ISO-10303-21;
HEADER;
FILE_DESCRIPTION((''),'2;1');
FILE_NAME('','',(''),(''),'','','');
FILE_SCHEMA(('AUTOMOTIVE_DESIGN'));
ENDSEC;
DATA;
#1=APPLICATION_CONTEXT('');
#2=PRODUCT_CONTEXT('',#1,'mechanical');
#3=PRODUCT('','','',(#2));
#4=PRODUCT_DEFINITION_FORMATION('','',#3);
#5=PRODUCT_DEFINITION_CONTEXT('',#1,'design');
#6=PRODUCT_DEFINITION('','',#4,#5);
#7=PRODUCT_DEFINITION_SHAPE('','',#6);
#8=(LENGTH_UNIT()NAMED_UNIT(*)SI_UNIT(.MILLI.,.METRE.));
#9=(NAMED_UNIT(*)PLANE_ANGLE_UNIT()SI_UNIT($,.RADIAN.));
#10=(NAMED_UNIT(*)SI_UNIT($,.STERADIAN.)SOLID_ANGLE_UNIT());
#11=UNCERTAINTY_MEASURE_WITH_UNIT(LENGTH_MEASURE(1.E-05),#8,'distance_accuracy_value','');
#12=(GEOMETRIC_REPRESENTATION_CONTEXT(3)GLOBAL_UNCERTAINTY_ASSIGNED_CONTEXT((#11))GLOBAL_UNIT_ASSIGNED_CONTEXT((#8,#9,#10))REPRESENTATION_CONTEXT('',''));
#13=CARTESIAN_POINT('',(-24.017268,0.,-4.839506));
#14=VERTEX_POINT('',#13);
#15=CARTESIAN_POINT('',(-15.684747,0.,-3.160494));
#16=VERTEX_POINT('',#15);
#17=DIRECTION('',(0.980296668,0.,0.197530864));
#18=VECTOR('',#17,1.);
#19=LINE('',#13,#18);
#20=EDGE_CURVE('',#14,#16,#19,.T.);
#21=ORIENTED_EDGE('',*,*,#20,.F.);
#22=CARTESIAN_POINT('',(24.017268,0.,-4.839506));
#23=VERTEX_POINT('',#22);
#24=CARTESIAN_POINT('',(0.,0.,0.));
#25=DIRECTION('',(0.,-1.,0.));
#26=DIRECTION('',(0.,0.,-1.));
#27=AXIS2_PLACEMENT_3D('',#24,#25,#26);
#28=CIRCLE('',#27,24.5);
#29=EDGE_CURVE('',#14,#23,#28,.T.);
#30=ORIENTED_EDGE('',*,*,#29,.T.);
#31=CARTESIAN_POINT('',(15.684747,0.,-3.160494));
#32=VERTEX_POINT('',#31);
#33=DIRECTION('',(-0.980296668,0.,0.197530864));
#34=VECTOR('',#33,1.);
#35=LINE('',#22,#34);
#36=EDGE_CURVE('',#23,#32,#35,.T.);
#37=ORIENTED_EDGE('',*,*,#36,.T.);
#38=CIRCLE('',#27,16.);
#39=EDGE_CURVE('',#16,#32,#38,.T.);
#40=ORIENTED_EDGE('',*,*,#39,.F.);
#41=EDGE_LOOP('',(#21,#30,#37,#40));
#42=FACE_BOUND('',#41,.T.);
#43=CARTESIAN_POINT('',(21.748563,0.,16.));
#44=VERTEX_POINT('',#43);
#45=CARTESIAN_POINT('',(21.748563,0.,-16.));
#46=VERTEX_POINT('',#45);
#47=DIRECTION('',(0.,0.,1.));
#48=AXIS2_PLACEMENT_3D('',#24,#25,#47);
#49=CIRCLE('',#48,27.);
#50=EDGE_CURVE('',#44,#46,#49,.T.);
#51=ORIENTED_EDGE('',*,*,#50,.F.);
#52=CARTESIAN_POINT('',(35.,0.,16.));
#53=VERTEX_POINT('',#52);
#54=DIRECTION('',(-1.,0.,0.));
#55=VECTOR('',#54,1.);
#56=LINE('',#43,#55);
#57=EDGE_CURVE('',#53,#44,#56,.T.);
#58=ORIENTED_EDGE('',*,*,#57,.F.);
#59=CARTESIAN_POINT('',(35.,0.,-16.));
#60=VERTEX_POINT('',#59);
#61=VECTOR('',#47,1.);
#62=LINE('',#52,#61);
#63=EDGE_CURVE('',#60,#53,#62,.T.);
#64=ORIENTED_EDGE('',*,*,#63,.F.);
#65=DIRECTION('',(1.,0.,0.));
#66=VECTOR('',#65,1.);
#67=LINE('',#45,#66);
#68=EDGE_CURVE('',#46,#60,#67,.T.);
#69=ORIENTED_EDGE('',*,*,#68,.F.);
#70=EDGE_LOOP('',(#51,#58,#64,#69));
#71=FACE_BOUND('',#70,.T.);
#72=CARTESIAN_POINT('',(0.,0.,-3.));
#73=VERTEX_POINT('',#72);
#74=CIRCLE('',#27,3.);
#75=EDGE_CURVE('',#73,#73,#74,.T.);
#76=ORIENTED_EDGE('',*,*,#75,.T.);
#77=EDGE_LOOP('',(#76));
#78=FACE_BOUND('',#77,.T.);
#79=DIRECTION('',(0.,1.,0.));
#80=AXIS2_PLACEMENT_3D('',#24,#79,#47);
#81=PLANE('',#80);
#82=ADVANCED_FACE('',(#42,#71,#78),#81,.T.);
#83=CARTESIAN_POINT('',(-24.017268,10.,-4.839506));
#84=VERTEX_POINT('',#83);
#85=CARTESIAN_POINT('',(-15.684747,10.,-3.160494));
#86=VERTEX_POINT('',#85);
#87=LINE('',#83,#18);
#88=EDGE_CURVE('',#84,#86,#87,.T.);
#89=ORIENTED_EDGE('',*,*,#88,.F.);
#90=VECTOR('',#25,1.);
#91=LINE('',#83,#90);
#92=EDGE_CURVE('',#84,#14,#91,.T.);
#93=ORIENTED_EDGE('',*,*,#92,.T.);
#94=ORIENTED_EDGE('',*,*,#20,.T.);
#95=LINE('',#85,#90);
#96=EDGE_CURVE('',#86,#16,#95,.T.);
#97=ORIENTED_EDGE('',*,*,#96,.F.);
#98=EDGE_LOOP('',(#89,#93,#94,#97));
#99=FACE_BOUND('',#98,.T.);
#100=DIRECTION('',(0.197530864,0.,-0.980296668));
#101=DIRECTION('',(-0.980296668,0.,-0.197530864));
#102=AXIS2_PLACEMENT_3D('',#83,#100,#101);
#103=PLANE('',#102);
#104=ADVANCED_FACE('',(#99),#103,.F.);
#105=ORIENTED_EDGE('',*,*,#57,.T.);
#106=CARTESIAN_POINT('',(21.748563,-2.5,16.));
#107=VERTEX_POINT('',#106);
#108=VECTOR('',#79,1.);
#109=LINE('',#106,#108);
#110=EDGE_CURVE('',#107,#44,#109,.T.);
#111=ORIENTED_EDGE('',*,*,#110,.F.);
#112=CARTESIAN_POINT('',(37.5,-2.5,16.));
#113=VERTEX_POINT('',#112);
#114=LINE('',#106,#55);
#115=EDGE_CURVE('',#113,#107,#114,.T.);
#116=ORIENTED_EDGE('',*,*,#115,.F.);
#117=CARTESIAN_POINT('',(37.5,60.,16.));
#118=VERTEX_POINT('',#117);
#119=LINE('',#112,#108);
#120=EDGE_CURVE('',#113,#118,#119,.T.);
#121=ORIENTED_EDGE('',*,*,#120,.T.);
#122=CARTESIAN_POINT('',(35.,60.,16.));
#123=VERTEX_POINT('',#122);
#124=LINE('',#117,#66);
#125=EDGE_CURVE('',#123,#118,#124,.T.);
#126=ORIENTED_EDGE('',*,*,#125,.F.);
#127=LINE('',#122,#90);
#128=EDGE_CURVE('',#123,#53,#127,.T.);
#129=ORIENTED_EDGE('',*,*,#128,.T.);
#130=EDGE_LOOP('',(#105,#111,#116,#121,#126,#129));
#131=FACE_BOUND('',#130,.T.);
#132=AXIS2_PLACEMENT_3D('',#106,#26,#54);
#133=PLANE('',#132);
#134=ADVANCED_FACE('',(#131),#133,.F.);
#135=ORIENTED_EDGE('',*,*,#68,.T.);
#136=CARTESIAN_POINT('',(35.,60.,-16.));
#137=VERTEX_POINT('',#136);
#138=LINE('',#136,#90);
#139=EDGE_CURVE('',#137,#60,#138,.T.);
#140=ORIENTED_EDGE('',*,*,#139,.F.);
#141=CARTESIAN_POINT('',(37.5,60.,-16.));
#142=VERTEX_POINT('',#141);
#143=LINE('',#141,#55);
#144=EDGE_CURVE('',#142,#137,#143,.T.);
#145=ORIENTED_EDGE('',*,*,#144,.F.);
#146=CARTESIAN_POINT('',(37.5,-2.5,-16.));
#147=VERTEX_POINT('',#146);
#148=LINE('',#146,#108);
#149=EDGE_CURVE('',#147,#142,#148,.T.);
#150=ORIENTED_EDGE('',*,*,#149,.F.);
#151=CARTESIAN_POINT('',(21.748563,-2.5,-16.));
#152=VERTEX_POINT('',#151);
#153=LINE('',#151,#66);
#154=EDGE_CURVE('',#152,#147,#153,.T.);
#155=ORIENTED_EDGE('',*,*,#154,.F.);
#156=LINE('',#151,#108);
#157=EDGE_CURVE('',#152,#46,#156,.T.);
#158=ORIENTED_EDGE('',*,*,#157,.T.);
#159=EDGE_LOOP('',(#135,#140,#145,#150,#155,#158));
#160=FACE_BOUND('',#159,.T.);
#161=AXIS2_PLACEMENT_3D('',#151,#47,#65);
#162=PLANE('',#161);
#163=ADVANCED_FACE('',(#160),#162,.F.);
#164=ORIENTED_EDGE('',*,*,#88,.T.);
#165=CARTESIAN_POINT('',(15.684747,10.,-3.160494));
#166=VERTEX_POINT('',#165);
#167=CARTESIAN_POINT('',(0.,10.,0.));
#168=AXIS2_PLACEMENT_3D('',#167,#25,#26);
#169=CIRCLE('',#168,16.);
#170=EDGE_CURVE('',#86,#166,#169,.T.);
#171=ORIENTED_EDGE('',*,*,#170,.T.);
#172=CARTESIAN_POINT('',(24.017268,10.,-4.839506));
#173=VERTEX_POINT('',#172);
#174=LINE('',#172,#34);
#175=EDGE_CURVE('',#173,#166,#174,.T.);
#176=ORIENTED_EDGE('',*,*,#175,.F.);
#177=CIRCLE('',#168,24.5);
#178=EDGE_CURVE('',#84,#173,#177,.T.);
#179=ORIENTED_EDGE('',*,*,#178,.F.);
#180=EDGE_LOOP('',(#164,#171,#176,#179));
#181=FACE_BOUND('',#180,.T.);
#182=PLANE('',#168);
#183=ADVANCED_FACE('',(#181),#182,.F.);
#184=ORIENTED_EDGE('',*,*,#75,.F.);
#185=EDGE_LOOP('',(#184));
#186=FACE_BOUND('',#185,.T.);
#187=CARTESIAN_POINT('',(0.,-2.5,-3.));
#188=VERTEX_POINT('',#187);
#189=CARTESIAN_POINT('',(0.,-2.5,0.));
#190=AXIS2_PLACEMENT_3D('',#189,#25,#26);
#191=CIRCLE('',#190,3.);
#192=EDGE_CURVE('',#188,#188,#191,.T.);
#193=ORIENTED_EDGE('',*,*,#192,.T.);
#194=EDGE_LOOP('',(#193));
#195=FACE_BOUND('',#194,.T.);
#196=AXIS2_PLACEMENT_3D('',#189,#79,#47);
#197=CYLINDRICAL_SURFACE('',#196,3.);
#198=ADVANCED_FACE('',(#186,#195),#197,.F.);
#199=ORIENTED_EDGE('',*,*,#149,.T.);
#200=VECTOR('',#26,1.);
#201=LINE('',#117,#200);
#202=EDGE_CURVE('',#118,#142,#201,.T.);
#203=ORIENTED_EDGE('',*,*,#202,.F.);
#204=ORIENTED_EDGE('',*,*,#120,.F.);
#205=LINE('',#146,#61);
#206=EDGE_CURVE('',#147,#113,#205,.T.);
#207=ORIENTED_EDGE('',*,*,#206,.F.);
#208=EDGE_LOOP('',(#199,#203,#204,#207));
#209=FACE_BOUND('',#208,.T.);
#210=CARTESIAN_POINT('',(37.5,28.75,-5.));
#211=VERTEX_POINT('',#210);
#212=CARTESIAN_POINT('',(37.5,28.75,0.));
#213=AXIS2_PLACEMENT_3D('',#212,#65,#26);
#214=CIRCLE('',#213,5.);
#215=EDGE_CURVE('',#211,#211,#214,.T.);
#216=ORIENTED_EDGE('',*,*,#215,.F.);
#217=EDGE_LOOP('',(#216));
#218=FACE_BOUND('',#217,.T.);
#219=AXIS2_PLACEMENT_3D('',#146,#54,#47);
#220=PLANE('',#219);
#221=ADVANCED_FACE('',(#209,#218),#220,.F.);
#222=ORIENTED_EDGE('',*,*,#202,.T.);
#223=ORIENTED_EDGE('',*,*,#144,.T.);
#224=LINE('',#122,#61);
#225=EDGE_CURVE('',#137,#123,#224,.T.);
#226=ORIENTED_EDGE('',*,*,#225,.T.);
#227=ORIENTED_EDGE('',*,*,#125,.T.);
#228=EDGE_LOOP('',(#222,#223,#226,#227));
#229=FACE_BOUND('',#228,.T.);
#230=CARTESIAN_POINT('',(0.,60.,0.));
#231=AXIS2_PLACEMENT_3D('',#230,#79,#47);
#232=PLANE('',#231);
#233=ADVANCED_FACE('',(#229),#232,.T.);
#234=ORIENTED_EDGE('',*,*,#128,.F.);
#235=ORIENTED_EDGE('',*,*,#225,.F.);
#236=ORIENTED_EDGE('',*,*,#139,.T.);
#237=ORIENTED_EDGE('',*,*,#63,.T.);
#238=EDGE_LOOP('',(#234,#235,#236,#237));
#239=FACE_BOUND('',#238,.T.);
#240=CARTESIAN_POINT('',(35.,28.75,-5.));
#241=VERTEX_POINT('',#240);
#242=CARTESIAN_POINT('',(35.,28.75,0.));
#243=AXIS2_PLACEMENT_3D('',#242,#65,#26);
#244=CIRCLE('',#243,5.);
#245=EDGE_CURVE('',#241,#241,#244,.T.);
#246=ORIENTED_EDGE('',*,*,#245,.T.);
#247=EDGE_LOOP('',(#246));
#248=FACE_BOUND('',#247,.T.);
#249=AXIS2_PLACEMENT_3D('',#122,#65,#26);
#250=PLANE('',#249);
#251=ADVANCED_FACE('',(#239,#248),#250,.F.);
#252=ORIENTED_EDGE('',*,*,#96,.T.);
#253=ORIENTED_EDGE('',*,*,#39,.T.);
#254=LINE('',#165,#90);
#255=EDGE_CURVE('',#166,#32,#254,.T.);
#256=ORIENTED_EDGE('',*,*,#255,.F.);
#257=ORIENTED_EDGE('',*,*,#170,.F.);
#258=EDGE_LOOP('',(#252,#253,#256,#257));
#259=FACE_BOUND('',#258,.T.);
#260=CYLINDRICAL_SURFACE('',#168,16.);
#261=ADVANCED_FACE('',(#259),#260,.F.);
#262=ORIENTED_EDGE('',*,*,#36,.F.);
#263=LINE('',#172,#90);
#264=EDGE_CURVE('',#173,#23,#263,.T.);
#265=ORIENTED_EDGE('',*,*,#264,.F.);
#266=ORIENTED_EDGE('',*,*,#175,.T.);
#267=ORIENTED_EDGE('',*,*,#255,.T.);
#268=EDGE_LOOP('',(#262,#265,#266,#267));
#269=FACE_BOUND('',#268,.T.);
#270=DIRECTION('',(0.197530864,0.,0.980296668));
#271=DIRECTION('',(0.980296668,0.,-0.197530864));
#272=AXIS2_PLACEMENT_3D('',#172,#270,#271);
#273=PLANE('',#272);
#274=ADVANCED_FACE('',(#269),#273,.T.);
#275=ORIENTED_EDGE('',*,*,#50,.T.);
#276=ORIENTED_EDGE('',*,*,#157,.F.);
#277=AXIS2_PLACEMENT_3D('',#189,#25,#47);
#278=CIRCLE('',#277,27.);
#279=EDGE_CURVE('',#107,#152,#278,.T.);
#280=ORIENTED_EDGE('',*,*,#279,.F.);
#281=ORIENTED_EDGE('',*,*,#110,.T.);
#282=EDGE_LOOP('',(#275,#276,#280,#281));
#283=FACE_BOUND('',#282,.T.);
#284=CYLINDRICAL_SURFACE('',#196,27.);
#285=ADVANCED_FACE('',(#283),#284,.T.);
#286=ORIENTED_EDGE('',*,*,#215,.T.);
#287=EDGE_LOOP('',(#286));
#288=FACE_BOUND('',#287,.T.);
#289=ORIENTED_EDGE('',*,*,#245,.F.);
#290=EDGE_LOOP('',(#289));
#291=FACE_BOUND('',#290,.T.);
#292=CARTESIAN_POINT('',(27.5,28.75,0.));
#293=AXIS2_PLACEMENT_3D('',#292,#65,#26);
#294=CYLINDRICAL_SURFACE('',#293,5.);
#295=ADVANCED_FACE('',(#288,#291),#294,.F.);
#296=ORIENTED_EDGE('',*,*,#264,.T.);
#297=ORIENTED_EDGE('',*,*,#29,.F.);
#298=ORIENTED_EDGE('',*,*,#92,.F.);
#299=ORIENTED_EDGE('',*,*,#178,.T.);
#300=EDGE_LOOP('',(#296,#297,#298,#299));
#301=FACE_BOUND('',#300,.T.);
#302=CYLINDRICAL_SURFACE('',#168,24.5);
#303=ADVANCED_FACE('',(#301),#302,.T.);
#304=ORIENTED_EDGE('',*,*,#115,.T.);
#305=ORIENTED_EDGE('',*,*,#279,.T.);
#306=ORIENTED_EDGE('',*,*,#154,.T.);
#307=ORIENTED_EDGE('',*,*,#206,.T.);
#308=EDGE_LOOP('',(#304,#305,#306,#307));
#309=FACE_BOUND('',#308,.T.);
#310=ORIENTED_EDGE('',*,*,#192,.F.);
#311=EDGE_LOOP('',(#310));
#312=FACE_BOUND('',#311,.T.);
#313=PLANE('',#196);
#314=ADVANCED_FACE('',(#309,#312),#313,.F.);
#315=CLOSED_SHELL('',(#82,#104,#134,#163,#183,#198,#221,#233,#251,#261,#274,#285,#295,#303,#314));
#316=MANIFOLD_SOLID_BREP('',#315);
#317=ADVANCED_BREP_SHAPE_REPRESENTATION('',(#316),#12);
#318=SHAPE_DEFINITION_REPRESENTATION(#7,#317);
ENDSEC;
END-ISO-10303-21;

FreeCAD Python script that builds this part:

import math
import FreeCAD as App
import Part
import Sketcher

V = App.Vector
Q = App.Units.Quantity

doc = App.newDocument("Part")
params = doc.addObject("Spreadsheet::Sheet", "Params")
for row, (alias, value) in enumerate([
    ("sketch1_radius", "16 mm"),
    ("sketch1_radius2", "24.5 mm"),
    ("pad1_length", "10 mm"),
    ("sketch2_diameter", "6 mm"),
    ("sketch2_radius", "27 mm"),
    ("sketch2_height", "32 mm"),
    ("pad2_length", "2.5 mm"),
    ("sketch3_height", "32 mm"),
    ("sketch3_width", "2.5 mm"),
    ("pad3_length", "60 mm"),
    ("sketch4_diameter", "10 mm"),
    ("pocket1_length", "10 mm"),
], start=1):
    params.set(f"A{row}", alias)
    params.set(f"B{row}", "=" + value)
    params.setAlias(f"B{row}", alias)

body = doc.addObject("PartDesign::Body", "Body")

sketch1 = body.newObject("Sketcher::SketchObject", "Sketch")
sketch1.AttachmentSupport = (doc.getObject("XZ_Plane"), [""])
sketch1.MapMode = "FlatFace"
sketch1.addGeometry([
    Part.LineSegment(V(-24, -5, 0), V(-16, -3, 0)),
    Part.ArcOfCircle(Part.Circle(V(0, 0, 0), V(0, 0, 1), 16), math.radians(-169), math.radians(-11)),
    Part.LineSegment(V(16, -3, 0), V(24, -5, 0)),
    Part.ArcOfCircle(Part.Circle(V(0, 0, 0), V(0, 0, 1), 24), math.radians(-169), math.radians(-11)),
], False)
sketch1.addConstraint([
    Sketcher.Constraint("Coincident", 0, 2, 1, 1),
    Sketcher.Constraint("Coincident", 1, 2, 2, 1),
    Sketcher.Constraint("Coincident", 2, 2, 3, 2),
    Sketcher.Constraint("Coincident", 3, 1, 0, 1),
    Sketcher.Constraint("Coincident", 1, 3, -1, 1),
    Sketcher.Constraint("Coincident", 3, 3, -1, 1),
    Sketcher.Constraint("Horizontal", 0, 2, 1, 2),
    Sketcher.Constraint("Horizontal", 2, 2, 3, 1),
    Sketcher.Constraint("Radius", 1, Q("16 mm")),
    Sketcher.Constraint("Radius", 3, Q("24.5 mm")),
    Sketcher.Constraint("DistanceX", -1, 1, 2, 2, Q("24.017268 mm")),
    Sketcher.Constraint("DistanceX", 1, 2, 2, 2, Q("8.332522 mm")),
])
sketch1.setExpression("Constraints[8]", "Params.sketch1_radius")
sketch1.setExpression("Constraints[9]", "Params.sketch1_radius2")
pad1 = body.newObject("PartDesign::Pad", "Pad")
pad1.Profile = sketch1
pad1.setExpression("Length", "Params.pad1_length")
pad1.Reversed = True

sketch2 = body.newObject("Sketcher::SketchObject", "Sketch001")
sketch2.AttachmentSupport = (doc.getObject("XZ_Plane"), [""])
sketch2.MapMode = "FlatFace"
sketch2.addGeometry([
    Part.LineSegment(V(37.5, -16, 0), V(37.5, 16, 0)),
    Part.LineSegment(V(37.5, 16, 0), V(21.7, 16, 0)),
    Part.ArcOfCircle(Part.Circle(V(0, 0, 0), V(0, 0, 1), 27), math.radians(36), math.radians(90)),
    Part.ArcOfCircle(Part.Circle(V(0, 0, 0), V(0, 0, 1), 27), math.radians(90), math.radians(270)),
    Part.ArcOfCircle(Part.Circle(V(0, 0, 0), V(0, 0, 1), 27), math.radians(-90), math.radians(-36)),
    Part.LineSegment(V(21.7, -16, 0), V(37.5, -16, 0)),
    Part.Circle(V(0, 0, 0), V(0, 0, 1), 3),
], False)
sketch2.addConstraint([
    Sketcher.Constraint("Coincident", 0, 2, 1, 1),
    Sketcher.Constraint("Coincident", 1, 2, 2, 1),
    Sketcher.Constraint("Tangent", 2, 2, 3, 1),
    Sketcher.Constraint("Tangent", 3, 2, 4, 1),
    Sketcher.Constraint("Coincident", 4, 2, 5, 1),
    Sketcher.Constraint("Coincident", 5, 2, 0, 1),
    Sketcher.Constraint("Vertical", 0),
    Sketcher.Constraint("Horizontal", 1),
    Sketcher.Constraint("Horizontal", 5),
    Sketcher.Constraint("Coincident", 2, 3, -1, 1),
    Sketcher.Constraint("Coincident", 6, 3, -1, 1),
    Sketcher.Constraint("Equal", 2, 3),
    Sketcher.Constraint("Equal", 3, 4),
    Sketcher.Constraint("PointOnObject", 2, 2, -2),
    Sketcher.Constraint("PointOnObject", 3, 2, -2),
    Sketcher.Constraint("Vertical", 1, 2, 4, 2),
    Sketcher.Constraint("Diameter", 6, Q("6 mm")),
    Sketcher.Constraint("Radius", 2, Q("27 mm")),
    Sketcher.Constraint("DistanceY", 0, 1, 0, 2, Q("32 mm")),
    Sketcher.Constraint("DistanceX", -1, 1, 0, 2, Q("37.5 mm")),
])
sketch2.setExpression("Constraints[16]", "Params.sketch2_diameter")
sketch2.setExpression("Constraints[17]", "Params.sketch2_radius")
sketch2.setExpression("Constraints[18]", "Params.sketch2_height")
pad2 = body.newObject("PartDesign::Pad", "Pad001")
pad2.Profile = sketch2
pad2.setExpression("Length", "Params.pad2_length")

sketch3 = body.newObject("Sketcher::SketchObject", "Sketch002")
sketch3.AttachmentSupport = (doc.getObject("XZ_Plane"), [""])
sketch3.MapMode = "FlatFace"
sketch3.addGeometry([
    Part.LineSegment(V(35, -16, 0), V(35, 16, 0)),
    Part.LineSegment(V(35, 16, 0), V(37.5, 16, 0)),
    Part.LineSegment(V(37.5, 16, 0), V(37.5, -16, 0)),
    Part.LineSegment(V(37.5, -16, 0), V(35, -16, 0)),
], False)
sketch3.addConstraint([
    Sketcher.Constraint("Coincident", 0, 2, 1, 1),
    Sketcher.Constraint("Coincident", 1, 2, 2, 1),
    Sketcher.Constraint("Coincident", 2, 2, 3, 1),
    Sketcher.Constraint("Coincident", 3, 2, 0, 1),
    Sketcher.Constraint("Vertical", 0),
    Sketcher.Constraint("Horizontal", 1),
    Sketcher.Constraint("Vertical", 2),
    Sketcher.Constraint("Horizontal", 3),
    Sketcher.Constraint("DistanceY", 0, 1, 0, 2, Q("32 mm")),
    Sketcher.Constraint("DistanceX", 1, 1, 1, 2, Q("2.5 mm")),
    Sketcher.Constraint("DistanceX", -1, 1, 0, 2, Q("35 mm")),
    Sketcher.Constraint("DistanceY", -1, 1, 0, 2, Q("16 mm")),
])
sketch3.setExpression("Constraints[8]", "Params.sketch3_height")
sketch3.setExpression("Constraints[9]", "Params.sketch3_width")
pad3 = body.newObject("PartDesign::Pad", "Pad002")
pad3.Profile = sketch3
pad3.setExpression("Length", "Params.pad3_length")
pad3.Reversed = True

sketch4 = body.newObject("Sketcher::SketchObject", "Sketch003")
sketch4.AttachmentSupport = (doc.getObject("YZ_Plane"), [""])
sketch4.MapMode = "FlatFace"
sketch4.AttachmentOffset = App.Placement(V(0, 0, 37.5), App.Rotation())
sketch4.addGeometry(Part.Circle(V(29, 0, 0), V(0, 0, 1), 5), False)
sketch4.addConstraint([
    Sketcher.Constraint("PointOnObject", 0, 3, -1),
    Sketcher.Constraint("Diameter", 0, Q("10 mm")),
    Sketcher.Constraint("DistanceX", -1, 1, 0, 3, Q("28.75 mm")),
])
sketch4.setExpression("Constraints[1]", "Params.sketch4_diameter")
pocket1 = body.newObject("PartDesign::Pocket", "Pocket")
pocket1.Profile = sketch4
pocket1.setExpression("Length", "Params.pocket1_length")

doc.recompute()
